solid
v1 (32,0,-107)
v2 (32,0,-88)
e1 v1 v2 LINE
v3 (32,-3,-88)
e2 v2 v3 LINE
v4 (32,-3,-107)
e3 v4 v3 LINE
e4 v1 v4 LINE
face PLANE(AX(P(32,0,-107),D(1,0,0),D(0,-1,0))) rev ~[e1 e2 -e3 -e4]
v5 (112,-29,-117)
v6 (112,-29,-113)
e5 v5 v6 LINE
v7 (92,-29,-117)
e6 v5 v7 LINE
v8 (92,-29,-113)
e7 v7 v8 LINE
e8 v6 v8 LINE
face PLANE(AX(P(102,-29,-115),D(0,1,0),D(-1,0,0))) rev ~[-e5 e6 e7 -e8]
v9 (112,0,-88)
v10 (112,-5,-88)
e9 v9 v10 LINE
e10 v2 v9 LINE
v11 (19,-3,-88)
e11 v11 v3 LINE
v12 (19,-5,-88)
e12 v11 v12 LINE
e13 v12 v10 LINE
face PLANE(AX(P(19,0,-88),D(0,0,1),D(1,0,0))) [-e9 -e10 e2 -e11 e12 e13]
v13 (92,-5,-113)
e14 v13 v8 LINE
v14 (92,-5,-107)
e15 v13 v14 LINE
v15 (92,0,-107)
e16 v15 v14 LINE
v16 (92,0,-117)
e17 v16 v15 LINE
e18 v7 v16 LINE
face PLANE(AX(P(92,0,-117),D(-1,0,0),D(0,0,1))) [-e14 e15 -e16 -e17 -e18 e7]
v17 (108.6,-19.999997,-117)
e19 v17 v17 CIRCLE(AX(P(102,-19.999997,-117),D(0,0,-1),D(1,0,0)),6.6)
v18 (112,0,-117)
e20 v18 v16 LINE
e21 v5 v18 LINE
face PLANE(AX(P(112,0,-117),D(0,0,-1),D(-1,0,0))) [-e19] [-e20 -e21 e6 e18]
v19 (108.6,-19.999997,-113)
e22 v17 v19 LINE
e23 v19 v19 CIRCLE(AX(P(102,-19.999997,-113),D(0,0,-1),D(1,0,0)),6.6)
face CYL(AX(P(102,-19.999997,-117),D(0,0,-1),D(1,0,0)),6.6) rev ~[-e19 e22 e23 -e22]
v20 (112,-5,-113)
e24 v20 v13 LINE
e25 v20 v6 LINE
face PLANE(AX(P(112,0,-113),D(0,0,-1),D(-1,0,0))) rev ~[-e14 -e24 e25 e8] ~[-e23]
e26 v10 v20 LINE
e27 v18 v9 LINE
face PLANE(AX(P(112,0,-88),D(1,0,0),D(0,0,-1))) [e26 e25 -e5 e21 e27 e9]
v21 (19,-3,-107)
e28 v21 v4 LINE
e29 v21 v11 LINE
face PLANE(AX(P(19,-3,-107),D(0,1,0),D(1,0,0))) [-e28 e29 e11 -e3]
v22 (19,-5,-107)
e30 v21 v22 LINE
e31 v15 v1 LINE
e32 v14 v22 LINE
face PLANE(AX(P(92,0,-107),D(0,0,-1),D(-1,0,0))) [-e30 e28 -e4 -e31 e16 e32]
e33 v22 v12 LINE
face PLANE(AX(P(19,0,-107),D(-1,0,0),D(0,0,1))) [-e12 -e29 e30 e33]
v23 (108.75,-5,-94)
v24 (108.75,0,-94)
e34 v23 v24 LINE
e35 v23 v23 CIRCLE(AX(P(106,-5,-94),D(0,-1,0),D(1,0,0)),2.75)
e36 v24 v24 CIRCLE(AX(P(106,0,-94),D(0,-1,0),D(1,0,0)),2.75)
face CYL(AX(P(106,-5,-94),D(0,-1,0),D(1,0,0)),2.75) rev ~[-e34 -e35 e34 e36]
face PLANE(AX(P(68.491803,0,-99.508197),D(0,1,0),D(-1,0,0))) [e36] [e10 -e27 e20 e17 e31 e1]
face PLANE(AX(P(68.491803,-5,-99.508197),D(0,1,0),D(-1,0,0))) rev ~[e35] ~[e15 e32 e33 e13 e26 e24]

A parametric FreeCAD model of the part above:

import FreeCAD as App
import Part
import Sketcher

V = App.Vector


def add_polygon(sketch, points):
    """Adds a closed chain of lines whose ends are joined by coincident constraints."""
    first, n = sketch.GeometryCount, len(points)
    for a, b in zip(points, points[1:] + points[:1]):
        sketch.addGeometry(Part.LineSegment(App.Vector(*a, 0), App.Vector(*b, 0)), False)
    for i in range(n):
        sketch.addConstraint(Sketcher.Constraint("Coincident", first + i, 2, first + (i + 1) % n, 1))

doc = App.newDocument("Part")
body = doc.addObject("PartDesign::Body", "Body")

# Sketch on XZ plane
sketch1 = doc.addObject("Sketcher::SketchObject", "Sketch")
body.addObject(sketch1)
sketch1.AttachmentSupport = (doc.XZ_Plane, [""])
sketch1.MapMode = "FlatFace"
add_polygon(sketch1, [(112, -113), (112, -117), (92, -117), (92, -113)])  # lines 0-3
sketch1.addConstraint([
    Sketcher.Constraint("Vertical", 0),
    Sketcher.Constraint("Horizontal", 1),
    Sketcher.Constraint("Vertical", 2),
    Sketcher.Constraint("Horizontal", 3),
    Sketcher.Constraint("DistanceX", 1, 2, 1, 1, 20.0),
    Sketcher.Constraint("DistanceY", 0, 2, 0, 1, 4.0),
    Sketcher.Constraint("DistanceX", -1, 1, 0, 2, 112.0),
    Sketcher.Constraint("DistanceY", 0, 2, -1, 1, 117.0),
])
pad1 = doc.addObject("PartDesign::Pad", "Pad")
body.addObject(pad1)
pad1.Profile = sketch1
pad1.Length = 29

# Sketch on XY plane
sketch2 = doc.addObject("Sketcher::SketchObject", "Sketch001")
body.addObject(sketch2)
sketch2.AttachmentSupport = (doc.XY_Plane, [""])
sketch2.MapMode = "FlatFace"
sketch2.AttachmentOffset = App.Placement(V(0, 0, -117), App.Rotation())
sketch2.addGeometry(Part.Circle(V(102, -20, 0), V(0, 0, 1), 7), False)
sketch2.addConstraint([
    Sketcher.Constraint("Diameter", 0, 13.2),
    Sketcher.Constraint("DistanceX", -1, 1, 0, 3, 102.0),
    Sketcher.Constraint("DistanceY", 0, 3, -1, 1, 19.999997),
])
pocket1 = doc.addObject("PartDesign::Pocket", "Pocket")
body.addObject(pocket1)
pocket1.Profile = sketch2
pocket1.Type = "ThroughAll"
pocket1.Reversed = True
body2 = doc.addObject("PartDesign::Body", "Body001")

# Sketch on XY plane
sketch3 = doc.addObject("Sketcher::SketchObject", "Sketch002")
body2.addObject(sketch3)
sketch3.AttachmentSupport = (doc.getObject("XY_Plane001"), [""])
sketch3.MapMode = "FlatFace"
sketch3.AttachmentOffset = App.Placement(V(0, 0, -107), App.Rotation())
add_polygon(sketch3, [(19, -41), (19, -38), (32, -38), (32, -41)])  # lines 0-3
sketch3.addConstraint([
    Sketcher.Constraint("Vertical", 0),
    Sketcher.Constraint("Horizontal", 1),
    Sketcher.Constraint("Vertical", 2),
    Sketcher.Constraint("Horizontal", 3),
    Sketcher.Constraint("DistanceX", 1, 1, 1, 2, 13.0),
    Sketcher.Constraint("DistanceY", 0, 1, 0, 2, 3.0),
    Sketcher.Constraint("DistanceX", -1, 1, 0, 2, 19.0),
    Sketcher.Constraint("DistanceY", 0, 2, -1, 1, 38.0),
])
pad2 = doc.addObject("PartDesign::Pad", "Pad001")
body2.addObject(pad2)
pad2.Profile = sketch3
pad2.Length = 19
body3 = doc.addObject("PartDesign::Body", "Body002")
doc.recompute()

body2.Placement = App.Placement(V(0, 38, 0), App.Rotation(V(0, 0, 1), 0))
boolean = doc.addObject("PartDesign::Boolean", "Boolean")
body3.addObject(boolean)
boolean.Type = "Fuse"
boolean.addObjects([body2])
body4 = doc.addObject("PartDesign::Body", "Body003")

# Sketch on XZ plane
sketch4 = doc.addObject("Sketcher::SketchObject", "Sketch003")
body4.addObject(sketch4)
sketch4.AttachmentSupport = (doc.getObject("XZ_Plane003"), [""])
sketch4.MapMode = "FlatFace"
add_polygon(sketch4, [(112, -88), (19, -88), (19, -107), (92, -107), (92, -117), (112, -117)])  # lines 0-5
sketch4.addConstraint([
    Sketcher.Constraint("Horizontal", 0),
    Sketcher.Constraint("Vertical", 1),
    Sketcher.Constraint("Horizontal", 2),
    Sketcher.Constraint("Vertical", 3),
    Sketcher.Constraint("Horizontal", 4),
    Sketcher.Constraint("Vertical", 5),
    Sketcher.Constraint("DistanceX", 0, 2, 0, 1, 93.0),
    Sketcher.Constraint("DistanceX", 2, 1, 2, 2, 73.0),
    Sketcher.Constraint("DistanceY", 1, 2, 1, 1, 19.0),
    Sketcher.Constraint("DistanceY", 3, 2, 3, 1, 10.0),
    Sketcher.Constraint("DistanceX", -1, 1, 0, 2, 19.0),
    Sketcher.Constraint("DistanceY", 0, 2, -1, 1, 88.0),
])
pad3 = doc.addObject("PartDesign::Pad", "Pad002")
body4.addObject(pad3)
pad3.Profile = sketch4
pad3.Length = 5

# Sketch on XZ plane
sketch5 = doc.addObject("Sketcher::SketchObject", "Sketch004")
body4.addObject(sketch5)
sketch5.AttachmentSupport = (doc.getObject("XZ_Plane003"), [""])
sketch5.MapMode = "FlatFace"
sketch5.AttachmentOffset = App.Placement(V(0, 0, 5), App.Rotation())
sketch5.addGeometry(Part.Circle(V(106, -94, 0), V(0, 0, 1), 2.8), False)
sketch5.addConstraint([
    Sketcher.Constraint("Diameter", 0, 5.5),
    Sketcher.Constraint("DistanceX", -1, 1, 0, 3, 106.0),
    Sketcher.Constraint("DistanceY", 0, 3, -1, 1, 94.0),
])
pocket2 = doc.addObject("PartDesign::Pocket", "Pocket001")
body4.addObject(pocket2)
pocket2.Profile = sketch5
pocket2.Type = "ThroughAll"
doc.recompute()

boolean2 = doc.addObject("PartDesign::Boolean", "Boolean001")
body4.addObject(boolean2)
boolean2.Type = "Fuse"
boolean2.addObjects([body])
doc.recompute()

boolean3 = doc.addObject("PartDesign::Boolean", "Boolean002")
body4.addObject(boolean3)
boolean3.Type = "Cut"
boolean3.addObjects([body3])

doc.recompute()
